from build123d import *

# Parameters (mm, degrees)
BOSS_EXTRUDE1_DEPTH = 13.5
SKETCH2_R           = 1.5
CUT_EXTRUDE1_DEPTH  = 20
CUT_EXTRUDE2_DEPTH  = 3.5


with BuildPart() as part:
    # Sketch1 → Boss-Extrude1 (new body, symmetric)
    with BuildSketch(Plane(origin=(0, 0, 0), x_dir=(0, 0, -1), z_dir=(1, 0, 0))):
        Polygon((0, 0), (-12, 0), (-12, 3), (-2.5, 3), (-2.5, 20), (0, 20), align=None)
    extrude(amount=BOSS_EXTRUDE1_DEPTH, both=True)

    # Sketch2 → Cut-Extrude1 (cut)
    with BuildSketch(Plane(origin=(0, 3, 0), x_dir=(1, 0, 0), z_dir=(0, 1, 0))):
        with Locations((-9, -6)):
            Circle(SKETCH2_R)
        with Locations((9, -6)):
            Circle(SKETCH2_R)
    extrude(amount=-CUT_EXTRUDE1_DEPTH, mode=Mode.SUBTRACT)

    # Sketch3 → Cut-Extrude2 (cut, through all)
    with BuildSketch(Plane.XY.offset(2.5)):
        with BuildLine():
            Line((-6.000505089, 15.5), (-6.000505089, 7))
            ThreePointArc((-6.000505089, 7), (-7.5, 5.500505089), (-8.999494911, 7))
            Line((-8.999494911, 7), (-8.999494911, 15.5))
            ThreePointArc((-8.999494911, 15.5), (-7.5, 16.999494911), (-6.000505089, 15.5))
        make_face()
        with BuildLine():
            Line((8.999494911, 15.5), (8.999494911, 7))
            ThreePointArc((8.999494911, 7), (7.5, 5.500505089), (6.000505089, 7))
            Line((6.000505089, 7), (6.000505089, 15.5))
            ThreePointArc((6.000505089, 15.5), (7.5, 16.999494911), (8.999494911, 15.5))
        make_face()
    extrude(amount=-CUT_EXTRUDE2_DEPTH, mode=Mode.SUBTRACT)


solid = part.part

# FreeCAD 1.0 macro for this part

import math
import FreeCAD as App
import Part
import Sketcher

V = App.Vector


def add_polygon(sketch, points):
    """Adds a closed chain of lines whose ends are joined by coincident constraints."""
    first, n = sketch.GeometryCount, len(points)
    for a, b in zip(points, points[1:] + points[:1]):
        sketch.addGeometry(Part.LineSegment(App.Vector(*a, 0), App.Vector(*b, 0)), False)
    for i in range(n):
        sketch.addConstraint(Sketcher.Constraint("Coincident", first + i, 2, first + (i + 1) % n, 1))

doc = App.newDocument("Part")
body = doc.addObject("PartDesign::Body", "Body")

# Sketch on YZ plane
sketch1 = body.newObject("Sketcher::SketchObject", "Sketch")
sketch1.AttachmentSupport = (doc.getObject("YZ_Plane"), [""])
sketch1.MapMode = "FlatFace"
add_polygon(sketch1, [(0, 12), (0, 0), (20, 0), (20, 2.5), (3, 2.5), (3, 12)])  # lines 0-5
sketch1.addConstraint(Sketcher.Constraint("Vertical", 0))
sketch1.addConstraint(Sketcher.Constraint("Horizontal", 1))
sketch1.addConstraint(Sketcher.Constraint("Vertical", 2))
sketch1.addConstraint(Sketcher.Constraint("Horizontal", 3))
sketch1.addConstraint(Sketcher.Constraint("Vertical", 4))
sketch1.addConstraint(Sketcher.Constraint("Horizontal", 5))
sketch1.addConstraint(Sketcher.Constraint("Coincident", 0, 2, -1, 1))
sketch1.addConstraint(Sketcher.Constraint("DistanceX", 1, 1, 1, 2, 20.0))
sketch1.addConstraint(Sketcher.Constraint("DistanceX", 3, 2, 3, 1, 17.0))
sketch1.addConstraint(Sketcher.Constraint("DistanceY", 0, 2, 0, 1, 12.0))
sketch1.addConstraint(Sketcher.Constraint("DistanceY", 2, 1, 2, 2, 2.5))
pad1 = body.newObject("PartDesign::Pad", "Pad")
pad1.Profile = sketch1
pad1.Length = 27
pad1.Midplane = True

# Sketch on XZ plane
sketch2 = body.newObject("Sketcher::SketchObject", "Sketch001")
sketch2.AttachmentSupport = (doc.getObject("XZ_Plane"), [""])
sketch2.MapMode = "FlatFace"
sketch2.AttachmentOffset = App.Placement(V(0, 0, -3), App.Rotation())
sketch2.addGeometry(Part.Circle(V(-9, 6, 0), V(0, 0, 1), 1.5), False)
sketch2.addGeometry(Part.Circle(V(9, 6, 0), V(0, 0, 1), 1.5), False)
sketch2.addConstraint(Sketcher.Constraint("Equal", 0, 1))
sketch2.addConstraint(Sketcher.Constraint("Symmetric", 0, 3, 1, 3, -2))
sketch2.addConstraint(Sketcher.Constraint("Diameter", 0, 3.0))
sketch2.addConstraint(Sketcher.Constraint("DistanceX", 0, 3, -1, 1, 9.0))
sketch2.addConstraint(Sketcher.Constraint("DistanceY", -1, 1, 0, 3, 6.0))
pocket1 = body.newObject("PartDesign::Pocket", "Pocket")
pocket1.Profile = sketch2
pocket1.Length = 20
pocket1.Reversed = True

# Sketch on XY plane
sketch3 = body.newObject("Sketcher::SketchObject", "Sketch002")
sketch3.AttachmentSupport = (doc.getObject("XY_Plane"), [""])
sketch3.MapMode = "FlatFace"
sketch3.AttachmentOffset = App.Placement(V(0, 0, 2.5), App.Rotation())
sketch3.addGeometry(Part.LineSegment(V(-6.000505, 7, 0), V(-6.000505, 15.5, 0)), False)
sketch3.addGeometry(Part.ArcOfCircle(Part.Circle(V(-7.5, 15.5, 0), V(0, 0, 1), 1.499495), math.radians(0), math.radians(180)), False)
sketch3.addGeometry(Part.LineSegment(V(-8.999495, 15.5, 0), V(-8.999495, 7, 0)), False)
sketch3.addGeometry(Part.ArcOfCircle(Part.Circle(V(-7.5, 7, 0), V(0, 0, 1), 1.499495), math.radians(180), math.radians(360)), False)
sketch3.addGeometry(Part.LineSegment(V(8.999495, 7, 0), V(8.999495, 15.5, 0)), False)
sketch3.addGeometry(Part.ArcOfCircle(Part.Circle(V(7.5, 15.5, 0), V(0, 0, 1), 1.499495), math.radians(0), math.radians(180)), False)
sketch3.addGeometry(Part.LineSegment(V(6.000505, 15.5, 0), V(6.000505, 7, 0)), False)
sketch3.addGeometry(Part.ArcOfCircle(Part.Circle(V(7.5, 7, 0), V(0, 0, 1), 1.499495), math.radians(180), math.radians(360)), False)
sketch3.addConstraint(Sketcher.Constraint("Tangent", 0, 2, 1, 1))
sketch3.addConstraint(Sketcher.Constraint("Tangent", 1, 2, 2, 1))
sketch3.addConstraint(Sketcher.Constraint("Tangent", 2, 2, 3, 1))
sketch3.addConstraint(Sketcher.Constraint("Tangent", 3, 2, 0, 1))
sketch3.addConstraint(Sketcher.Constraint("Tangent", 4, 2, 5, 1))
sketch3.addConstraint(Sketcher.Constraint("Tangent", 5, 2, 6, 1))
sketch3.addConstraint(Sketcher.Constraint("Tangent", 6, 2, 7, 1))
sketch3.addConstraint(Sketcher.Constraint("Tangent", 7, 2, 4, 1))
sketch3.addConstraint(Sketcher.Constraint("Vertical", 0))
sketch3.addConstraint(Sketcher.Constraint("Vertical", 2))
sketch3.addConstraint(Sketcher.Constraint("Vertical", 4))
sketch3.addConstraint(Sketcher.Constraint("Vertical", 6))
sketch3.addConstraint(Sketcher.Constraint("Equal", 3, 5))
sketch3.addConstraint(Sketcher.Constraint("Symmetric", 1, 3, 5, 3, -2))
sketch3.addConstraint(Sketcher.Constraint("Horizontal", 3, 3, 7, 3))
sketch3.addConstraint(Sketcher.Constraint("DistanceY", 0, 1, 0, 2, 8.5))
sketch3.addConstraint(Sketcher.Constraint("DistanceY", -1, 1, 3, 3, 7.0))
sketch3.addConstraint(Sketcher.Constraint("DistanceX", 1, 3, 5, 3, 15.0))
sketch3.addConstraint(Sketcher.Constraint("Radius", 1, 1.499495))
pocket2 = body.newObject("PartDesign::Pocket", "Pocket001")
pocket2.Profile = sketch3
pocket2.Type = "ThroughAll"

doc.recompute()
